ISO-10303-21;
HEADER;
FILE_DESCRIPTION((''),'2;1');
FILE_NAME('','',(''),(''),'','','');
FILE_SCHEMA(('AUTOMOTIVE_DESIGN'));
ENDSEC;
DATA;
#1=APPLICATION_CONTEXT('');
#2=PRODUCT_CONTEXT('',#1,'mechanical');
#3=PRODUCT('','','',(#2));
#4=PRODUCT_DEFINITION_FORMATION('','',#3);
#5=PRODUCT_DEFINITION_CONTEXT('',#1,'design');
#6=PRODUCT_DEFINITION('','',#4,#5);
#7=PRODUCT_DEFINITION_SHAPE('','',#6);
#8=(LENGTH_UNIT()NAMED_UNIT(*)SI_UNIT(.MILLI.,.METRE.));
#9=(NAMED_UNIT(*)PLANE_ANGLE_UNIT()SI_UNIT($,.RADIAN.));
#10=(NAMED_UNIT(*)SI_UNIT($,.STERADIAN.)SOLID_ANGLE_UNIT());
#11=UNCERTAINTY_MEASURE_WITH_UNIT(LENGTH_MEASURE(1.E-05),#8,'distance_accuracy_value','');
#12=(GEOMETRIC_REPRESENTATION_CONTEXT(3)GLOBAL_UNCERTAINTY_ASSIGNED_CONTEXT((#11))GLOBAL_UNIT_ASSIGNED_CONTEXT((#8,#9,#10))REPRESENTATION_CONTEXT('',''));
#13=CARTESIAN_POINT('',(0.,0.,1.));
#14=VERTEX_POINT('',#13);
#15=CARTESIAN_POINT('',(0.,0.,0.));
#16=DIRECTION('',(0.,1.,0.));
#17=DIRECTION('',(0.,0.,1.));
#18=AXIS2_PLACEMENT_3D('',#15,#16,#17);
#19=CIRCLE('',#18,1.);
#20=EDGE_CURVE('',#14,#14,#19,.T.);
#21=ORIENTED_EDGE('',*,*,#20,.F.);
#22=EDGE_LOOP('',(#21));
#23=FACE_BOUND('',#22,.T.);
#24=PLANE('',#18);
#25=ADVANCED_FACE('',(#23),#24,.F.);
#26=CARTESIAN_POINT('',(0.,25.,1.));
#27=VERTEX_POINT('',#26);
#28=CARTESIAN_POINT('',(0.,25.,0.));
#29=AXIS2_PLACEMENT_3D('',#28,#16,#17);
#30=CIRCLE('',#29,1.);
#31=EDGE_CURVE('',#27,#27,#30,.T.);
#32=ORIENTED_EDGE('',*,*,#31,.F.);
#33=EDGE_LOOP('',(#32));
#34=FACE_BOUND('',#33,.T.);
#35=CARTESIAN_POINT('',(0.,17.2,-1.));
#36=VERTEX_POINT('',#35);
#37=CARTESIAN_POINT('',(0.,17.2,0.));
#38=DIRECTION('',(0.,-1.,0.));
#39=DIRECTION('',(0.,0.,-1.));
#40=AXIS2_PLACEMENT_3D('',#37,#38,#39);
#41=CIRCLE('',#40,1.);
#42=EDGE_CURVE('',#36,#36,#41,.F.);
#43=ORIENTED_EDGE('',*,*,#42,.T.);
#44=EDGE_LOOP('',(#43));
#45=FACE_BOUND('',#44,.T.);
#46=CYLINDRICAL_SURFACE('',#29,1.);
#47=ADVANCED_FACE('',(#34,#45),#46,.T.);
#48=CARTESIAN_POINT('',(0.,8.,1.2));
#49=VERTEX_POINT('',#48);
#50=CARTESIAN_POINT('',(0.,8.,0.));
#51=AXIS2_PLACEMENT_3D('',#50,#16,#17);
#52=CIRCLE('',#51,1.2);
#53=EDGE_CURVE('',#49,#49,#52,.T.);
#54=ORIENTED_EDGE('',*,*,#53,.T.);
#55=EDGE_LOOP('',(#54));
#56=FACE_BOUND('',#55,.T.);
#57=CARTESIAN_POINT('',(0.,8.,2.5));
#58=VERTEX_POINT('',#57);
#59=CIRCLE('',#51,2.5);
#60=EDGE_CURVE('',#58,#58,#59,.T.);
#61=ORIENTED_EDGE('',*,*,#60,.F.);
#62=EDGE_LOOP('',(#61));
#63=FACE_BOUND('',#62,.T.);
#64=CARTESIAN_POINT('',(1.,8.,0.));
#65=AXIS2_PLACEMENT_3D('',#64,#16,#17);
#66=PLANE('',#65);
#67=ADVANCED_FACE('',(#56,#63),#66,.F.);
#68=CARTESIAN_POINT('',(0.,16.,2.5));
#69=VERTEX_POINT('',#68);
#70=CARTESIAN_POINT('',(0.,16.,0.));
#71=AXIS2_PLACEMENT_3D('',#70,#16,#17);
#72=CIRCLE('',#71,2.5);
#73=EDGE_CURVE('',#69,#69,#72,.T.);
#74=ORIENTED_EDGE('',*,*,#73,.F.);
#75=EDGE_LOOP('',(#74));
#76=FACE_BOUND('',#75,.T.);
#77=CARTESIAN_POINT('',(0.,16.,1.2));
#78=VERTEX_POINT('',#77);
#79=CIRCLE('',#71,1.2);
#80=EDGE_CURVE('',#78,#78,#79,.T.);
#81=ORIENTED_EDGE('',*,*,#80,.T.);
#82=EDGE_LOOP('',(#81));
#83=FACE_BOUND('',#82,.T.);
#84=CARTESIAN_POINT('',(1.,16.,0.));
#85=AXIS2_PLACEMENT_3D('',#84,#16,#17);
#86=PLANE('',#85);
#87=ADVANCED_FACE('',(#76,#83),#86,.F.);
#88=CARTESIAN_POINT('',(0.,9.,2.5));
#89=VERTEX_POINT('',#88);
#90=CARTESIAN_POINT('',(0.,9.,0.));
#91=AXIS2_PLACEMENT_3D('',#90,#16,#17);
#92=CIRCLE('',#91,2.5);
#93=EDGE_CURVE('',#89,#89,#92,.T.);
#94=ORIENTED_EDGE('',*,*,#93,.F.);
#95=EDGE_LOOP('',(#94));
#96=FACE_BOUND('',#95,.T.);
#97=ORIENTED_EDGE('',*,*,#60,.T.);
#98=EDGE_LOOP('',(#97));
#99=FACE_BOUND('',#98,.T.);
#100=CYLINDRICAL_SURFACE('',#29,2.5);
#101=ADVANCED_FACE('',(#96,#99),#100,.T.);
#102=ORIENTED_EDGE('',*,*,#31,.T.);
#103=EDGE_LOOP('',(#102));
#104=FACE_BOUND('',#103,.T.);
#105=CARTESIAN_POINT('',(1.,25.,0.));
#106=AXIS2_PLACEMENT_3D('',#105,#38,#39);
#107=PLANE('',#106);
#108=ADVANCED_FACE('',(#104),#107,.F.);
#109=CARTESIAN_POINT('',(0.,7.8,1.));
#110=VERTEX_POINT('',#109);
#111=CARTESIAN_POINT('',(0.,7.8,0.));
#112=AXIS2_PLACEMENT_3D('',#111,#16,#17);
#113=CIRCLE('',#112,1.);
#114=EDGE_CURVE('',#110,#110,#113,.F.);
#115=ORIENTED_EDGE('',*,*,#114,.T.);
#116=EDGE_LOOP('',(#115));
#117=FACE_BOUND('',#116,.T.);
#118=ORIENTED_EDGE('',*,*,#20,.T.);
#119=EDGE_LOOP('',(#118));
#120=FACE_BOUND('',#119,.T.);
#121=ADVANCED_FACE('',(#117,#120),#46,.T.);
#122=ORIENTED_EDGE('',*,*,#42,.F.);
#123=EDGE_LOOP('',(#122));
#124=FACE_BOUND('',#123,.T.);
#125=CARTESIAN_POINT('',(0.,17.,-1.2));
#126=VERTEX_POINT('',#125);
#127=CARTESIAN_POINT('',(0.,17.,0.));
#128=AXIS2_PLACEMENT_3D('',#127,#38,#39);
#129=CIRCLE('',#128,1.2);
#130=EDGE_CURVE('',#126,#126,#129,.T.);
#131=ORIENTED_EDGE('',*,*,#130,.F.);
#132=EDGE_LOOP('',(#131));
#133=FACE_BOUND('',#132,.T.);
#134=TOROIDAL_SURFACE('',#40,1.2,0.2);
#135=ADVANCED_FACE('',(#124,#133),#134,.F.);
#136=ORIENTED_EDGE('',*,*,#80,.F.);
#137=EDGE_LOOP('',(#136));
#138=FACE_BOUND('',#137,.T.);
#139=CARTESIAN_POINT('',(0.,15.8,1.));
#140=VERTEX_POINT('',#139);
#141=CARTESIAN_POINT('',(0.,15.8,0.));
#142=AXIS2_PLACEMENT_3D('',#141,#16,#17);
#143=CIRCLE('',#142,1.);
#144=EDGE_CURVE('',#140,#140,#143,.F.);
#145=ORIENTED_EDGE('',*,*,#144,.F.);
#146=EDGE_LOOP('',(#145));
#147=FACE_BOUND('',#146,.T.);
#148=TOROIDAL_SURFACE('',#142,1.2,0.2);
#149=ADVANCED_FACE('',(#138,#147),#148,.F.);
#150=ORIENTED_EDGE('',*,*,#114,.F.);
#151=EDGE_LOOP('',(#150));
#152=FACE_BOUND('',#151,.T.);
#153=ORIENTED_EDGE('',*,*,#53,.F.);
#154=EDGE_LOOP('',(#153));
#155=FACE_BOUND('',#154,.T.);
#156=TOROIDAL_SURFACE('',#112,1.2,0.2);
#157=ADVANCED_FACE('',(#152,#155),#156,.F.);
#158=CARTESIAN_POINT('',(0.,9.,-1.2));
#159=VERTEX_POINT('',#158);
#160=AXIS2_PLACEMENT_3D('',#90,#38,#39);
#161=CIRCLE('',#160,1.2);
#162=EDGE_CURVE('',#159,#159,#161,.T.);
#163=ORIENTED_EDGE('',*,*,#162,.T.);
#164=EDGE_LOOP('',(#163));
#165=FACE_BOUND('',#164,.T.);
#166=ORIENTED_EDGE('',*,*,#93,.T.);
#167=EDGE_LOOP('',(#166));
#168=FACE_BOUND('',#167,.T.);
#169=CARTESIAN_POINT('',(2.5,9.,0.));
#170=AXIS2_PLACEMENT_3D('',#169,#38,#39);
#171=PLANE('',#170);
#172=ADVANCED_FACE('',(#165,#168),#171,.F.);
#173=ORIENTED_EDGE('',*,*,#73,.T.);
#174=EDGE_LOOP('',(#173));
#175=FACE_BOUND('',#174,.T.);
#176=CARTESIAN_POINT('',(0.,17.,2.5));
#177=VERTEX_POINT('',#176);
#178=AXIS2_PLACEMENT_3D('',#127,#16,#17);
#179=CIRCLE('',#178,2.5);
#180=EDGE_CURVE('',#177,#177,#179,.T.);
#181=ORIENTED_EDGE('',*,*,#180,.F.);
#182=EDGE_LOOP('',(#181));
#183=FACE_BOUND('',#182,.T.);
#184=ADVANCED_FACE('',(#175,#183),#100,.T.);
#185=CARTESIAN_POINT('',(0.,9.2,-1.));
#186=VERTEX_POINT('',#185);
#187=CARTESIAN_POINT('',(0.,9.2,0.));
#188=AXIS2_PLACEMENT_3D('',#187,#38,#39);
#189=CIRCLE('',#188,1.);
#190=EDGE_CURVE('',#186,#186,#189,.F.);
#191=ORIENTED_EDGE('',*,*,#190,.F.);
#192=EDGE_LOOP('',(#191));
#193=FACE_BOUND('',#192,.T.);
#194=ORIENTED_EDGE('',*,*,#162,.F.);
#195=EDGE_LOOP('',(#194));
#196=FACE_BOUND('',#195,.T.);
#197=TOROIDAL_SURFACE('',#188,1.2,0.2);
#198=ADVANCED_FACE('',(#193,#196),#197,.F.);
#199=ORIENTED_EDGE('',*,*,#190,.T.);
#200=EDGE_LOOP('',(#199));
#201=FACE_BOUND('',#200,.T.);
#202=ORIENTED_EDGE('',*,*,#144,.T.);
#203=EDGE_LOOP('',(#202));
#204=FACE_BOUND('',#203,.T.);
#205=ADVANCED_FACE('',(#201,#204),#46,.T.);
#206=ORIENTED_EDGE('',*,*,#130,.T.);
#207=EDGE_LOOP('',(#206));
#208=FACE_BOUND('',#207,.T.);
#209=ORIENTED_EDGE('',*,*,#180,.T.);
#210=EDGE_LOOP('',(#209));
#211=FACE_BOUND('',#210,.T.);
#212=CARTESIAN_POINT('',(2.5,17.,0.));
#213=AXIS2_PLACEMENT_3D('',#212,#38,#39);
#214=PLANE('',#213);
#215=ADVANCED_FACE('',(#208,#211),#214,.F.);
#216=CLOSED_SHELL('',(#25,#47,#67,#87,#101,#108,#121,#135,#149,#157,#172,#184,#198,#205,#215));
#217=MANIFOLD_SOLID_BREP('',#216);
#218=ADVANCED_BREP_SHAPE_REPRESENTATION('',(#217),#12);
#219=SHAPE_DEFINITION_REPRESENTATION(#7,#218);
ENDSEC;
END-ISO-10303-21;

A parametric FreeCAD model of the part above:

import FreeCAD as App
import Part
import Sketcher

V = App.Vector
Q = App.Units.Quantity


def edges_at(feature, points):
    """Names of the edges that pass closest to the given points."""
    edges = feature.Shape.Edges
    near = lambda p: min(range(len(edges)), key=lambda i: edges[i].distToShape(Part.Vertex(*p))[0])
    return sorted({f"Edge{near(p) + 1}" for p in points})

doc = App.newDocument("Part")
body = doc.addObject("PartDesign::Body", "Body")

# Sketch on XY plane
sketch1 = doc.addObject("Sketcher::SketchObject", "Sketch")
body.addObject(sketch1)
sketch1.AttachmentSupport = (doc.XY_Plane, [""])
sketch1.MapMode = "FlatFace"
sketch1.addGeometry([
    Part.LineSegment(V(0, 0, 0), V(1, 0, 0)),  # 0
    Part.LineSegment(V(1, 0, 0), V(1, 8, 0)),  # 1
    Part.LineSegment(V(1, 8, 0), V(2.5, 8, 0)),  # 2
    Part.LineSegment(V(2.5, 8, 0), V(2.5, 9, 0)),  # 3
    Part.LineSegment(V(2.5, 9, 0), V(1, 9, 0)),  # 4
    Part.LineSegment(V(1, 9, 0), V(1, 16, 0)),  # 5
    Part.LineSegment(V(1, 16, 0), V(2.5, 16, 0)),  # 6
    Part.LineSegment(V(2.5, 16, 0), V(2.5, 17, 0)),  # 7
    Part.LineSegment(V(2.5, 17, 0), V(1, 17, 0)),  # 8
    Part.LineSegment(V(1, 17, 0), V(1, 25, 0)),  # 9
    Part.LineSegment(V(1, 25, 0), V(0, 25, 0)),  # 10
    Part.LineSegment(V(0, 25, 0), V(0, 0, 0)),  # 11
], False)
sketch1.addConstraint([
    Sketcher.Constraint("Coincident", 0, 2, 1, 1),
    Sketcher.Constraint("Coincident", 1, 2, 2, 1),
    Sketcher.Constraint("Coincident", 2, 2, 3, 1),
    Sketcher.Constraint("Coincident", 3, 2, 4, 1),
    Sketcher.Constraint("Coincident", 4, 2, 5, 1),
    Sketcher.Constraint("Coincident", 5, 2, 6, 1),
    Sketcher.Constraint("Coincident", 6, 2, 7, 1),
    Sketcher.Constraint("Coincident", 7, 2, 8, 1),
    Sketcher.Constraint("Coincident", 8, 2, 9, 1),
    Sketcher.Constraint("Coincident", 9, 2, 10, 1),
    Sketcher.Constraint("Coincident", 10, 2, 11, 1),
    Sketcher.Constraint("Coincident", 11, 2, 0, 1),
    Sketcher.Constraint("Horizontal", 0),
    Sketcher.Constraint("Vertical", 1),
    Sketcher.Constraint("Horizontal", 2),
    Sketcher.Constraint("Vertical", 3),
    Sketcher.Constraint("Horizontal", 4),
    Sketcher.Constraint("Vertical", 5),
    Sketcher.Constraint("Horizontal", 6),
    Sketcher.Constraint("Vertical", 7),
    Sketcher.Constraint("Horizontal", 8),
    Sketcher.Constraint("Vertical", 9),
    Sketcher.Constraint("Horizontal", 10),
    Sketcher.Constraint("Vertical", 11),
    Sketcher.Constraint("Coincident", 11, 2, -1, 1),
    Sketcher.Constraint("Vertical", 1, 2, 4, 2),
    Sketcher.Constraint("Vertical", 3, 2, 6, 2),
    Sketcher.Constraint("Vertical", 5, 2, 8, 2),
    Sketcher.Constraint("Equal", 10, 3),
    Sketcher.Constraint("Equal", 3, 7),
    Sketcher.Constraint("Equal", 1, 9),
    Sketcher.Constraint("DistanceX", 0, 1, 0, 2, Q("1 mm")),
    Sketcher.Constraint("DistanceY", 1, 1, 1, 2, Q("8 mm")),
    Sketcher.Constraint("DistanceY", 5, 1, 5, 2, Q("7 mm")),
    Sketcher.Constraint("DistanceX", 2, 1, 2, 2, Q("1.5 mm")),
])
revolution = doc.addObject("PartDesign::Revolution", "Revolution")
body.addObject(revolution)
revolution.Profile = sketch1
revolution.ReferenceAxis = (sketch1, ["V_Axis"])
revolution.Angle = 360
doc.recompute()

fillet = doc.addObject("PartDesign::Fillet", "Fillet")
body.addObject(fillet)
fillet.Base = (revolution, edges_at(revolution, [
    (-1, 17, 0),
    (-1, 16, 0),
    (-1, 9, 0),
    (-1, 8, 0),
]))
fillet.Radius = 0.2

doc.recompute()
